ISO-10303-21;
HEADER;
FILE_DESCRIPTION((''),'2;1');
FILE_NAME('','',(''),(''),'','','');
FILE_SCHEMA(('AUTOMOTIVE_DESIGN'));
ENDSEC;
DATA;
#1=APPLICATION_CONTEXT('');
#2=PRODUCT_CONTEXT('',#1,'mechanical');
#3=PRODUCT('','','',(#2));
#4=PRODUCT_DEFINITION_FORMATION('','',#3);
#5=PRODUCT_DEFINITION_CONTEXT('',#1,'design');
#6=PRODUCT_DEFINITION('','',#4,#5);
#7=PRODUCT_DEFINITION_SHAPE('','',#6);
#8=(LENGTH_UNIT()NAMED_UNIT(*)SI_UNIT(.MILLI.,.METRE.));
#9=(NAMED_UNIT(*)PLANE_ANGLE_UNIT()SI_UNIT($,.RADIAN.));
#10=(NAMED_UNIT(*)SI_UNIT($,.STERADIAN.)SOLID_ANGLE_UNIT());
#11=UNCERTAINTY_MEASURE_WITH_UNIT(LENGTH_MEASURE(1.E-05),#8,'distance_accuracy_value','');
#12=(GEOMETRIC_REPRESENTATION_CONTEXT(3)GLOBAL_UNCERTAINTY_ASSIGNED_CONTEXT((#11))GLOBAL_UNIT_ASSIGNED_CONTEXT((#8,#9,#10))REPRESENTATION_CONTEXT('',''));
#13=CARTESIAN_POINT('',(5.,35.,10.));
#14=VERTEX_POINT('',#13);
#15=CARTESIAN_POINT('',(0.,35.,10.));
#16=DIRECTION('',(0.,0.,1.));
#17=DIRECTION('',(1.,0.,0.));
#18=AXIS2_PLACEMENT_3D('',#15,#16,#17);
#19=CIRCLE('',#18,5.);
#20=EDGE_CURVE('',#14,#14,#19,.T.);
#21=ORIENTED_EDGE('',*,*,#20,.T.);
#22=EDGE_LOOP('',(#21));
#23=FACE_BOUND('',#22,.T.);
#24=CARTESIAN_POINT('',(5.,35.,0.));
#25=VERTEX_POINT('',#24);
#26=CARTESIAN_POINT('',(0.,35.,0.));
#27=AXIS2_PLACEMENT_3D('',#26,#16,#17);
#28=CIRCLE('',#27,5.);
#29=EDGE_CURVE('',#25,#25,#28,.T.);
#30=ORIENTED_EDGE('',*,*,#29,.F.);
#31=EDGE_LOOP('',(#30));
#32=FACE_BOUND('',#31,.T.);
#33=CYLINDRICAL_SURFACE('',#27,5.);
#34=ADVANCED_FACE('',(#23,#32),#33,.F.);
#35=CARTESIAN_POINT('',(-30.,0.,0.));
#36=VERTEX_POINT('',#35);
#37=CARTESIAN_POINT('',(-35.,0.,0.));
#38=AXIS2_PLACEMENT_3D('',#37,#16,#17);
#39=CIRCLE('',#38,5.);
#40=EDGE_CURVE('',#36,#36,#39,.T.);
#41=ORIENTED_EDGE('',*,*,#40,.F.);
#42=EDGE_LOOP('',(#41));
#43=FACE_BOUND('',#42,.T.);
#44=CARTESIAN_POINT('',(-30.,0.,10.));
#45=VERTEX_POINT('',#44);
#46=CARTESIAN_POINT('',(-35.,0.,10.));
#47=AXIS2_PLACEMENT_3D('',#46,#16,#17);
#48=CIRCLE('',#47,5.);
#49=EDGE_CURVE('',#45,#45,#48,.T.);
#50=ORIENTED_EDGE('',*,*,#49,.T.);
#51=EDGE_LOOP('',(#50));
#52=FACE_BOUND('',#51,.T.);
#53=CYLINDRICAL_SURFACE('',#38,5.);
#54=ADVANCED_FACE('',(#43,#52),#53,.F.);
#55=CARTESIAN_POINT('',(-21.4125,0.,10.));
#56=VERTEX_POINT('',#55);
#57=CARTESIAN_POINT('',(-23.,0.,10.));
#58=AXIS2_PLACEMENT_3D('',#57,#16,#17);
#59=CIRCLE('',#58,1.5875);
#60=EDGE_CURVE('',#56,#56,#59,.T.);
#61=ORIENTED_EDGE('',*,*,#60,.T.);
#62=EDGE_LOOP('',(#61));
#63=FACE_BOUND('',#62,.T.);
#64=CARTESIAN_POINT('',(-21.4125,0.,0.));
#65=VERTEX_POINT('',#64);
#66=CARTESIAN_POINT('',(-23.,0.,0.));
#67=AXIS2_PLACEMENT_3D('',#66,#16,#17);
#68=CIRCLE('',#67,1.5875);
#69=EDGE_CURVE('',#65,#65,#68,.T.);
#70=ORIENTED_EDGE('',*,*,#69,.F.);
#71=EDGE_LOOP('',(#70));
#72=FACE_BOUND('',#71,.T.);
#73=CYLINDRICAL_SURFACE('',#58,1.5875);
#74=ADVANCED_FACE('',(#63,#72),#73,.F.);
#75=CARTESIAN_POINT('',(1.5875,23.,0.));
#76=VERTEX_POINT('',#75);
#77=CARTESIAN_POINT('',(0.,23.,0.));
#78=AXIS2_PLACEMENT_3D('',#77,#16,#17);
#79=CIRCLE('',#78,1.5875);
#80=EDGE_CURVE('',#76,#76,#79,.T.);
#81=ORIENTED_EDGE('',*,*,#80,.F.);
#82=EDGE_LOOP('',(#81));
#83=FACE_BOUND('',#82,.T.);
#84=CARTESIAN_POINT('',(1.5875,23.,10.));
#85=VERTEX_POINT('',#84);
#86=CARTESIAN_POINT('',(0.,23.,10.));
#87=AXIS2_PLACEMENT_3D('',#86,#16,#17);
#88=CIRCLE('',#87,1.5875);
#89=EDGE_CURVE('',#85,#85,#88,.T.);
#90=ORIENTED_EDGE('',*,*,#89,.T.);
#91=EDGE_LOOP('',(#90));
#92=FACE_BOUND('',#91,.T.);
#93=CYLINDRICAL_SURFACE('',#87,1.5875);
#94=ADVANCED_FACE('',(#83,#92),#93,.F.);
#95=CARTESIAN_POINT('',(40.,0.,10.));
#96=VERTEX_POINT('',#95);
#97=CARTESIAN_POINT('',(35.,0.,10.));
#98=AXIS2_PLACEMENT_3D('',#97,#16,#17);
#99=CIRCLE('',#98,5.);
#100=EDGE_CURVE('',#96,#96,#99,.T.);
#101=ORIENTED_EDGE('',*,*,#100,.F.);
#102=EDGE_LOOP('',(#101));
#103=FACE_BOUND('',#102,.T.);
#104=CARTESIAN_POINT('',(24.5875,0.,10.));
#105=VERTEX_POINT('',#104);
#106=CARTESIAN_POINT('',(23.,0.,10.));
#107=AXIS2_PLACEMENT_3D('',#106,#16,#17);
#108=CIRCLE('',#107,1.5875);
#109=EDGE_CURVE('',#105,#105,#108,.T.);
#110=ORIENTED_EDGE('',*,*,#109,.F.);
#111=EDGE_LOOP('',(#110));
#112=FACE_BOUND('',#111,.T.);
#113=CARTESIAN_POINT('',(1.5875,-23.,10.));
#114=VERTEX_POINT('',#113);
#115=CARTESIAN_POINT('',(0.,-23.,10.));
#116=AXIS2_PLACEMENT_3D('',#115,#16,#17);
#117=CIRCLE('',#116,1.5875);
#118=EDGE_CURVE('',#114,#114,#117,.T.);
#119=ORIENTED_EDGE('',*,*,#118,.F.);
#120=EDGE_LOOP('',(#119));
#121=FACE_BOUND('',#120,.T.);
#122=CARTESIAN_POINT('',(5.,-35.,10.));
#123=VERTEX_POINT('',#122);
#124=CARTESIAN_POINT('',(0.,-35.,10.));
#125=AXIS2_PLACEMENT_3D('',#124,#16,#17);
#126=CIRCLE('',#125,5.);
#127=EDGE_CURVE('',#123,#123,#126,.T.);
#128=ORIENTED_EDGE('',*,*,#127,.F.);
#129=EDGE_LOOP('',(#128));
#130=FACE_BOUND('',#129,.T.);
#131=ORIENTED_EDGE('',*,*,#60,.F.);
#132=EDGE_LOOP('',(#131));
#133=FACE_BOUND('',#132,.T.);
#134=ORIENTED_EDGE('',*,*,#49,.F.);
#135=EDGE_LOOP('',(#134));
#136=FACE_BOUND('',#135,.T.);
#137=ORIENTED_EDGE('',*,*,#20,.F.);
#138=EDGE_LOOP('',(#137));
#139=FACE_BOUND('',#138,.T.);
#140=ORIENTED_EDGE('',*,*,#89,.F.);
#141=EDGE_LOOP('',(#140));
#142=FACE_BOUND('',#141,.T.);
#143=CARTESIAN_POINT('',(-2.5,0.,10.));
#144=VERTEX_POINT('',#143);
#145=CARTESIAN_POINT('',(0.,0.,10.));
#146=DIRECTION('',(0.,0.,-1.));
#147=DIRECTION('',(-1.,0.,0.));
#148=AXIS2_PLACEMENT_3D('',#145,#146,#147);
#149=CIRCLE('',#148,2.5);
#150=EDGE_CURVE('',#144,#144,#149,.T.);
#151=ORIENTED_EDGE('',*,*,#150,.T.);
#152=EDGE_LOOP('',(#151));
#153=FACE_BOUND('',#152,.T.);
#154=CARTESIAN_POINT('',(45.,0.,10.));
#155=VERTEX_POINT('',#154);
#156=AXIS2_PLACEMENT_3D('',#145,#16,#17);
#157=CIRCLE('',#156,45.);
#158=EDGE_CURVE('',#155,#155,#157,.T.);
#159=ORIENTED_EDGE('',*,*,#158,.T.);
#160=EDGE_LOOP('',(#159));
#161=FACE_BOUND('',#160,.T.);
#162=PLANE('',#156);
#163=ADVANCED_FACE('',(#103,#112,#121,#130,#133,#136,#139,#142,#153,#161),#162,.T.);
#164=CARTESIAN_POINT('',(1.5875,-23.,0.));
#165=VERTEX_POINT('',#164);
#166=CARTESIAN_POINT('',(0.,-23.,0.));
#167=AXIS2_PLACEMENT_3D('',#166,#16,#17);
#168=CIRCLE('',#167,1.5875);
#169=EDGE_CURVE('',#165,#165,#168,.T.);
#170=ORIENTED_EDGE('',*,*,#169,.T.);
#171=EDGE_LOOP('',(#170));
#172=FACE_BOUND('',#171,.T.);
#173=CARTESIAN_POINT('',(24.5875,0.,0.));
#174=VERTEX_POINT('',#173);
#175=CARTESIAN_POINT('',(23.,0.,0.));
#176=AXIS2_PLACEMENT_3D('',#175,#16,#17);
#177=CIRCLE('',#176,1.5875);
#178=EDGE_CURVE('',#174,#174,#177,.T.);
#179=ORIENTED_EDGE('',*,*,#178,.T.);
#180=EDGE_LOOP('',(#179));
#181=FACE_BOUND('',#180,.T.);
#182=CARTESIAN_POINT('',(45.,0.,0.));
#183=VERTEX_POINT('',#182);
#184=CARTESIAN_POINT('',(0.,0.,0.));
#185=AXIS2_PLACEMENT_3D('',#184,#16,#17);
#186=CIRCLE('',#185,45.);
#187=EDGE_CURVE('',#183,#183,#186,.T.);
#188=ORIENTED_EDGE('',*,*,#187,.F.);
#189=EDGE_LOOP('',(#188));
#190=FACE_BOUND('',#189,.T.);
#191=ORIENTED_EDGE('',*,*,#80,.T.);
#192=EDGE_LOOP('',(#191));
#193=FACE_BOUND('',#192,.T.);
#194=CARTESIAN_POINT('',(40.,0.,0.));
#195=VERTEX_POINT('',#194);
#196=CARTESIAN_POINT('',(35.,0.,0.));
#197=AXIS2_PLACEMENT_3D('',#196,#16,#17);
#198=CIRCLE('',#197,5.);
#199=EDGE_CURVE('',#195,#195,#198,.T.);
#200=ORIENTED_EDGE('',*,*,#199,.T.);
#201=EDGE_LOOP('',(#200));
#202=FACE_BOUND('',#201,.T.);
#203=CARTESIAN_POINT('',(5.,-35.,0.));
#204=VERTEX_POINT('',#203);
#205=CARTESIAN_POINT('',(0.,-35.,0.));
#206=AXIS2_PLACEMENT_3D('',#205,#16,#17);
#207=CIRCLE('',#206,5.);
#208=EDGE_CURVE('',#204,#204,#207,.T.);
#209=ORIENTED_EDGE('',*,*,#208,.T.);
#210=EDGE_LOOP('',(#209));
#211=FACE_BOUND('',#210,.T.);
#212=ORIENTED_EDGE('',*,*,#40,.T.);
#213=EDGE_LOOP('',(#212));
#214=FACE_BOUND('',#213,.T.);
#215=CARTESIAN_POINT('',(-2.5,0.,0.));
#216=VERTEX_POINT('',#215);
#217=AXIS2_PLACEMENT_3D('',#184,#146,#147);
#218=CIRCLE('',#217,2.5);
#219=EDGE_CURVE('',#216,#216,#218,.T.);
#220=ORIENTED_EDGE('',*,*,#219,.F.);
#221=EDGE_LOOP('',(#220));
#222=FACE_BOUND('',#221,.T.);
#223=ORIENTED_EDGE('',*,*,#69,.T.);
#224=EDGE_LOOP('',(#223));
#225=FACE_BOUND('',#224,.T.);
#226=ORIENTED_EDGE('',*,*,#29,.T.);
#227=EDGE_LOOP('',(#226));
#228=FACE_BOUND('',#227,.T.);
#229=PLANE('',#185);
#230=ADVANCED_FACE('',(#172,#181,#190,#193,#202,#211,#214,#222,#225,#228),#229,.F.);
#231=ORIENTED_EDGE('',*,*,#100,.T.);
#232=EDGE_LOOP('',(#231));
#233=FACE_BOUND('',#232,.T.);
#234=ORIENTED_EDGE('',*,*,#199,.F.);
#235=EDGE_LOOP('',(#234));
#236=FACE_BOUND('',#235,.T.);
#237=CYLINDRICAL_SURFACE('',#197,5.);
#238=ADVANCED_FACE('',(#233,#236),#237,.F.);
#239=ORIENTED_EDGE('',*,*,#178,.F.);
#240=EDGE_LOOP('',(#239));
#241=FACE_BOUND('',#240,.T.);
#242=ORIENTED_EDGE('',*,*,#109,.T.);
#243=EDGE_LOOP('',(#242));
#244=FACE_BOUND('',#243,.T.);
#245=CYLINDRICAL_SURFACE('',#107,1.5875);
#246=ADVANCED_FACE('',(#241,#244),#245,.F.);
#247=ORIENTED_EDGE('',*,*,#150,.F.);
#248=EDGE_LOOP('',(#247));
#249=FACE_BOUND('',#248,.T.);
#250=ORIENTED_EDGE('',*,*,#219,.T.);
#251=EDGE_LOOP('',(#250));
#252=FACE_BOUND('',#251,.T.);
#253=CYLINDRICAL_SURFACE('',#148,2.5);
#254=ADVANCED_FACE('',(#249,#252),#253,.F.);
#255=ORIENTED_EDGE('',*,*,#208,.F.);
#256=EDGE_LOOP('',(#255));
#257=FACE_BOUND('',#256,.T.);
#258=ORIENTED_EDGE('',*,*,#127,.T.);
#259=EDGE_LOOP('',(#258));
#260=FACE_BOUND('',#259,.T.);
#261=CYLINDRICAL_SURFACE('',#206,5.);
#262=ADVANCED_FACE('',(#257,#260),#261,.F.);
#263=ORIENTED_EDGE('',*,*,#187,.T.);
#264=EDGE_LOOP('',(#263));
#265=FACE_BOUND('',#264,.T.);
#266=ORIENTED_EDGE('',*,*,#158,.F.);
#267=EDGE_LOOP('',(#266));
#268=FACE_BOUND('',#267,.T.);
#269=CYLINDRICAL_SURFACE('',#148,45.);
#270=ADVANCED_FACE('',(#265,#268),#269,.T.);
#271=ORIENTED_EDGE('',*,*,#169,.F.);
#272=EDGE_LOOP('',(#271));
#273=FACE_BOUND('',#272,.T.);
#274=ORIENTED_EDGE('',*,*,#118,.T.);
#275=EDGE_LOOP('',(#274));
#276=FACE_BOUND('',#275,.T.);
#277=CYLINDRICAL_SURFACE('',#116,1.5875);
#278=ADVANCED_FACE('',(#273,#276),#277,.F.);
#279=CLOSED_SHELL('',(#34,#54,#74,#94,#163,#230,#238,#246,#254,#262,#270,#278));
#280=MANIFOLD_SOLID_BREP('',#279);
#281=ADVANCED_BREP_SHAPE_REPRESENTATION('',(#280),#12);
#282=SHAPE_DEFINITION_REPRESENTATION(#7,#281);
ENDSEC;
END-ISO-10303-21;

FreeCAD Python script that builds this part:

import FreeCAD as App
import Part
import Sketcher
from FreeCAD import Vector
Q = App.Units.Quantity

doc = App.newDocument("Part")
body = doc.addObject("PartDesign::Body", "Body")

sketch1 = body.newObject("Sketcher::SketchObject", "Sketch")
sketch1.AttachmentSupport = (doc.getObject("XY_Plane"), [""])
sketch1.MapMode = "FlatFace"
sketch1.addGeometry(Part.Circle(Vector(0, 0, 0), Vector(0, 0, 1), 45), False)
sketch1.addConstraint(Sketcher.Constraint("Coincident", 0, 3, -1, 1))
sketch1.addConstraint(Sketcher.Constraint("Diameter", 0, Q("90 mm")))
pad1 = body.newObject("PartDesign::Pad", "Pad")
pad1.Profile = sketch1
pad1.Length = 10

sketch2 = body.newObject("Sketcher::SketchObject", "Sketch001")
sketch2.AttachmentSupport = (doc.getObject("XY_Plane"), [""])
sketch2.MapMode = "FlatFace"
sketch2.addGeometry(Part.Circle(Vector(0, 0, 0), Vector(0, 0, 1), 2.5), False)
sketch2.addConstraint(Sketcher.Constraint("Coincident", 0, 3, -1, 1))
sketch2.addConstraint(Sketcher.Constraint("Diameter", 0, Q("5 mm")))
pocket1 = body.newObject("PartDesign::Pocket", "Pocket")
pocket1.Profile = sketch2
pocket1.Type = "ThroughAll"
pocket1.Reversed = True

sketch3 = body.newObject("Sketcher::SketchObject", "Sketch002")
sketch3.AttachmentSupport = (doc.getObject("XY_Plane"), [""])
sketch3.MapMode = "FlatFace"
sketch3.AttachmentOffset = App.Placement(Vector(0, 0, 10), App.Rotation())
sketch3.addGeometry(Part.Circle(Vector(0, 35, 0), Vector(0, 0, 1), 5), False)
sketch3.addGeometry(Part.Circle(Vector(35, 0, 0), Vector(0, 0, 1), 5), False)
sketch3.addGeometry(Part.Circle(Vector(0, -35, 0), Vector(0, 0, 1), 5), False)
sketch3.addGeometry(Part.Circle(Vector(-35, 0, 0), Vector(0, 0, 1), 5), False)
sketch3.addConstraint(Sketcher.Constraint("Equal", 0, 1))
sketch3.addConstraint(Sketcher.Constraint("Equal", 1, 2))
sketch3.addConstraint(Sketcher.Constraint("Equal", 2, 3))
sketch3.addConstraint(Sketcher.Constraint("Symmetric", 0, 3, 2, 3, -1, 1))
sketch3.addConstraint(Sketcher.Constraint("Symmetric", 1, 3, 3, 3, -1, 1))
sketch3.addConstraint(Sketcher.Constraint("PointOnObject", 0, 3, -2))
sketch3.addConstraint(Sketcher.Constraint("PointOnObject", 1, 3, -1))
sketch3.addConstraint(Sketcher.Constraint("Diameter", 0, Q("10 mm")))
sketch3.addConstraint(Sketcher.Constraint("DistanceY", -1, 1, 0, 3, Q("35 mm")))
sketch3.addConstraint(Sketcher.Constraint("DistanceX", -1, 1, 1, 3, Q("35 mm")))
pocket2 = body.newObject("PartDesign::Pocket", "Pocket001")
pocket2.Profile = sketch3
pocket2.Length = 10

sketch4 = body.newObject("Sketcher::SketchObject", "Sketch003")
sketch4.AttachmentSupport = (doc.getObject("XY_Plane"), [""])
sketch4.MapMode = "FlatFace"
sketch4.AttachmentOffset = App.Placement(Vector(0, 0, 10), App.Rotation())
sketch4.addGeometry(Part.Circle(Vector(0, 23, 0), Vector(0, 0, 1), 1.6), False)
sketch4.addGeometry(Part.Circle(Vector(23, 0, 0), Vector(0, 0, 1), 1.6), False)
sketch4.addGeometry(Part.Circle(Vector(0, -23, 0), Vector(0, 0, 1), 1.6), False)
sketch4.addGeometry(Part.Circle(Vector(-23, 0, 0), Vector(0, 0, 1), 1.6), False)
sketch4.addConstraint(Sketcher.Constraint("Equal", 0, 1))
sketch4.addConstraint(Sketcher.Constraint("Equal", 1, 2))
sketch4.addConstraint(Sketcher.Constraint("Equal", 2, 3))
sketch4.addConstraint(Sketcher.Constraint("Symmetric", 0, 3, 2, 3, -1, 1))
sketch4.addConstraint(Sketcher.Constraint("Symmetric", 1, 3, 3, 3, -1, 1))
sketch4.addConstraint(Sketcher.Constraint("PointOnObject", 0, 3, -2))
sketch4.addConstraint(Sketcher.Constraint("PointOnObject", 1, 3, -1))
sketch4.addConstraint(Sketcher.Constraint("Diameter", 0, Q("3.175 mm")))
sketch4.addConstraint(Sketcher.Constraint("DistanceY", -1, 1, 0, 3, Q("23 mm")))
sketch4.addConstraint(Sketcher.Constraint("DistanceX", -1, 1, 1, 3, Q("23 mm")))
doc.recompute()
hole = body.newObject("PartDesign::Hole", "Hole")
hole.Profile = sketch4
hole.ThreadType = "None"
hole.Diameter = 3.175
hole.DepthType = "ThroughAll"

doc.recompute()
